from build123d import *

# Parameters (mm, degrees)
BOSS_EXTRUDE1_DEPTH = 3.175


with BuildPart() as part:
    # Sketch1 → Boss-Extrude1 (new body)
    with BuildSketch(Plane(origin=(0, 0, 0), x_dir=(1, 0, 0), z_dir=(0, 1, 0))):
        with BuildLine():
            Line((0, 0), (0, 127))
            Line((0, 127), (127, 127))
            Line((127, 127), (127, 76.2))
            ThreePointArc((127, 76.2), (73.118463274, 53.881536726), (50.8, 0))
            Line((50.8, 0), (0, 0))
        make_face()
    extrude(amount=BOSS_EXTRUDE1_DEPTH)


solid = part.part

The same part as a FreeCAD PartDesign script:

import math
import FreeCAD as App
import Part
import Sketcher
from FreeCAD import Vector
Q = App.Units.Quantity

doc = App.newDocument("Part")
params = doc.addObject("Spreadsheet::Sheet", "Params")
for row, (alias, value) in enumerate([
    ("sketch1_radius", "3 in"),
    ("sketch1_width", "2 in"),
    ("pad1_length", "0.125 in"),
], start=1):
    params.set(f"A{row}", alias)
    params.set(f"B{row}", "=" + value)
    params.setAlias(f"B{row}", alias)

body = doc.addObject("PartDesign::Body", "Body")

# Sketch on XZ plane
sketch1 = doc.addObject("Sketcher::SketchObject", "Sketch")
body.addObject(sketch1)
sketch1.AttachmentSupport = (doc.XZ_Plane, [""])
sketch1.MapMode = "FlatFace"
sketch1.addGeometry([
    Part.LineSegment(Vector(0, -127, 0), Vector(0, 0, 0)),  # 0
    Part.LineSegment(Vector(0, 0, 0), Vector(51, 0, 0)),  # 1
    Part.ArcOfCircle(Part.Circle(Vector(127, 0, 0), Vector(0, 0, 1), 76), math.radians(-180), math.radians(-90)),  # 2
    Part.LineSegment(Vector(127, -76, 0), Vector(127, -127, 0)),  # 3
    Part.LineSegment(Vector(127, -127, 0), Vector(0, -127, 0)),  # 4
], False)
sketch1.addConstraint([
    Sketcher.Constraint("Coincident", 0, 2, 1, 1),
    Sketcher.Constraint("Coincident", 1, 2, 2, 1),
    Sketcher.Constraint("Coincident", 2, 2, 3, 1),
    Sketcher.Constraint("Coincident", 3, 2, 4, 1),
    Sketcher.Constraint("Coincident", 4, 2, 0, 1),
    Sketcher.Constraint("Vertical", 0),
    Sketcher.Constraint("Horizontal", 1),
    Sketcher.Constraint("Vertical", 3),
    Sketcher.Constraint("Horizontal", 4),
    Sketcher.Constraint("Coincident", 0, 2, -1, 1),
    Sketcher.Constraint("PointOnObject", 2, 3, -1),
    Sketcher.Constraint("Equal", 4, 0),
    Sketcher.Constraint("Equal", 1, 3),
    Sketcher.Constraint("Radius", 2, Q("3 in")),
    Sketcher.Constraint("DistanceX", 1, 1, 1, 2, Q("2 in")),
])
sketch1.setExpression("Constraints[13]", "Params.sketch1_radius")
sketch1.setExpression("Constraints[14]", "Params.sketch1_width")
pad1 = doc.addObject("PartDesign::Pad", "Pad")
body.addObject(pad1)
pad1.Profile = sketch1
pad1.setExpression("Length", "Params.pad1_length")
pad1.Reversed = True

doc.recompute()
